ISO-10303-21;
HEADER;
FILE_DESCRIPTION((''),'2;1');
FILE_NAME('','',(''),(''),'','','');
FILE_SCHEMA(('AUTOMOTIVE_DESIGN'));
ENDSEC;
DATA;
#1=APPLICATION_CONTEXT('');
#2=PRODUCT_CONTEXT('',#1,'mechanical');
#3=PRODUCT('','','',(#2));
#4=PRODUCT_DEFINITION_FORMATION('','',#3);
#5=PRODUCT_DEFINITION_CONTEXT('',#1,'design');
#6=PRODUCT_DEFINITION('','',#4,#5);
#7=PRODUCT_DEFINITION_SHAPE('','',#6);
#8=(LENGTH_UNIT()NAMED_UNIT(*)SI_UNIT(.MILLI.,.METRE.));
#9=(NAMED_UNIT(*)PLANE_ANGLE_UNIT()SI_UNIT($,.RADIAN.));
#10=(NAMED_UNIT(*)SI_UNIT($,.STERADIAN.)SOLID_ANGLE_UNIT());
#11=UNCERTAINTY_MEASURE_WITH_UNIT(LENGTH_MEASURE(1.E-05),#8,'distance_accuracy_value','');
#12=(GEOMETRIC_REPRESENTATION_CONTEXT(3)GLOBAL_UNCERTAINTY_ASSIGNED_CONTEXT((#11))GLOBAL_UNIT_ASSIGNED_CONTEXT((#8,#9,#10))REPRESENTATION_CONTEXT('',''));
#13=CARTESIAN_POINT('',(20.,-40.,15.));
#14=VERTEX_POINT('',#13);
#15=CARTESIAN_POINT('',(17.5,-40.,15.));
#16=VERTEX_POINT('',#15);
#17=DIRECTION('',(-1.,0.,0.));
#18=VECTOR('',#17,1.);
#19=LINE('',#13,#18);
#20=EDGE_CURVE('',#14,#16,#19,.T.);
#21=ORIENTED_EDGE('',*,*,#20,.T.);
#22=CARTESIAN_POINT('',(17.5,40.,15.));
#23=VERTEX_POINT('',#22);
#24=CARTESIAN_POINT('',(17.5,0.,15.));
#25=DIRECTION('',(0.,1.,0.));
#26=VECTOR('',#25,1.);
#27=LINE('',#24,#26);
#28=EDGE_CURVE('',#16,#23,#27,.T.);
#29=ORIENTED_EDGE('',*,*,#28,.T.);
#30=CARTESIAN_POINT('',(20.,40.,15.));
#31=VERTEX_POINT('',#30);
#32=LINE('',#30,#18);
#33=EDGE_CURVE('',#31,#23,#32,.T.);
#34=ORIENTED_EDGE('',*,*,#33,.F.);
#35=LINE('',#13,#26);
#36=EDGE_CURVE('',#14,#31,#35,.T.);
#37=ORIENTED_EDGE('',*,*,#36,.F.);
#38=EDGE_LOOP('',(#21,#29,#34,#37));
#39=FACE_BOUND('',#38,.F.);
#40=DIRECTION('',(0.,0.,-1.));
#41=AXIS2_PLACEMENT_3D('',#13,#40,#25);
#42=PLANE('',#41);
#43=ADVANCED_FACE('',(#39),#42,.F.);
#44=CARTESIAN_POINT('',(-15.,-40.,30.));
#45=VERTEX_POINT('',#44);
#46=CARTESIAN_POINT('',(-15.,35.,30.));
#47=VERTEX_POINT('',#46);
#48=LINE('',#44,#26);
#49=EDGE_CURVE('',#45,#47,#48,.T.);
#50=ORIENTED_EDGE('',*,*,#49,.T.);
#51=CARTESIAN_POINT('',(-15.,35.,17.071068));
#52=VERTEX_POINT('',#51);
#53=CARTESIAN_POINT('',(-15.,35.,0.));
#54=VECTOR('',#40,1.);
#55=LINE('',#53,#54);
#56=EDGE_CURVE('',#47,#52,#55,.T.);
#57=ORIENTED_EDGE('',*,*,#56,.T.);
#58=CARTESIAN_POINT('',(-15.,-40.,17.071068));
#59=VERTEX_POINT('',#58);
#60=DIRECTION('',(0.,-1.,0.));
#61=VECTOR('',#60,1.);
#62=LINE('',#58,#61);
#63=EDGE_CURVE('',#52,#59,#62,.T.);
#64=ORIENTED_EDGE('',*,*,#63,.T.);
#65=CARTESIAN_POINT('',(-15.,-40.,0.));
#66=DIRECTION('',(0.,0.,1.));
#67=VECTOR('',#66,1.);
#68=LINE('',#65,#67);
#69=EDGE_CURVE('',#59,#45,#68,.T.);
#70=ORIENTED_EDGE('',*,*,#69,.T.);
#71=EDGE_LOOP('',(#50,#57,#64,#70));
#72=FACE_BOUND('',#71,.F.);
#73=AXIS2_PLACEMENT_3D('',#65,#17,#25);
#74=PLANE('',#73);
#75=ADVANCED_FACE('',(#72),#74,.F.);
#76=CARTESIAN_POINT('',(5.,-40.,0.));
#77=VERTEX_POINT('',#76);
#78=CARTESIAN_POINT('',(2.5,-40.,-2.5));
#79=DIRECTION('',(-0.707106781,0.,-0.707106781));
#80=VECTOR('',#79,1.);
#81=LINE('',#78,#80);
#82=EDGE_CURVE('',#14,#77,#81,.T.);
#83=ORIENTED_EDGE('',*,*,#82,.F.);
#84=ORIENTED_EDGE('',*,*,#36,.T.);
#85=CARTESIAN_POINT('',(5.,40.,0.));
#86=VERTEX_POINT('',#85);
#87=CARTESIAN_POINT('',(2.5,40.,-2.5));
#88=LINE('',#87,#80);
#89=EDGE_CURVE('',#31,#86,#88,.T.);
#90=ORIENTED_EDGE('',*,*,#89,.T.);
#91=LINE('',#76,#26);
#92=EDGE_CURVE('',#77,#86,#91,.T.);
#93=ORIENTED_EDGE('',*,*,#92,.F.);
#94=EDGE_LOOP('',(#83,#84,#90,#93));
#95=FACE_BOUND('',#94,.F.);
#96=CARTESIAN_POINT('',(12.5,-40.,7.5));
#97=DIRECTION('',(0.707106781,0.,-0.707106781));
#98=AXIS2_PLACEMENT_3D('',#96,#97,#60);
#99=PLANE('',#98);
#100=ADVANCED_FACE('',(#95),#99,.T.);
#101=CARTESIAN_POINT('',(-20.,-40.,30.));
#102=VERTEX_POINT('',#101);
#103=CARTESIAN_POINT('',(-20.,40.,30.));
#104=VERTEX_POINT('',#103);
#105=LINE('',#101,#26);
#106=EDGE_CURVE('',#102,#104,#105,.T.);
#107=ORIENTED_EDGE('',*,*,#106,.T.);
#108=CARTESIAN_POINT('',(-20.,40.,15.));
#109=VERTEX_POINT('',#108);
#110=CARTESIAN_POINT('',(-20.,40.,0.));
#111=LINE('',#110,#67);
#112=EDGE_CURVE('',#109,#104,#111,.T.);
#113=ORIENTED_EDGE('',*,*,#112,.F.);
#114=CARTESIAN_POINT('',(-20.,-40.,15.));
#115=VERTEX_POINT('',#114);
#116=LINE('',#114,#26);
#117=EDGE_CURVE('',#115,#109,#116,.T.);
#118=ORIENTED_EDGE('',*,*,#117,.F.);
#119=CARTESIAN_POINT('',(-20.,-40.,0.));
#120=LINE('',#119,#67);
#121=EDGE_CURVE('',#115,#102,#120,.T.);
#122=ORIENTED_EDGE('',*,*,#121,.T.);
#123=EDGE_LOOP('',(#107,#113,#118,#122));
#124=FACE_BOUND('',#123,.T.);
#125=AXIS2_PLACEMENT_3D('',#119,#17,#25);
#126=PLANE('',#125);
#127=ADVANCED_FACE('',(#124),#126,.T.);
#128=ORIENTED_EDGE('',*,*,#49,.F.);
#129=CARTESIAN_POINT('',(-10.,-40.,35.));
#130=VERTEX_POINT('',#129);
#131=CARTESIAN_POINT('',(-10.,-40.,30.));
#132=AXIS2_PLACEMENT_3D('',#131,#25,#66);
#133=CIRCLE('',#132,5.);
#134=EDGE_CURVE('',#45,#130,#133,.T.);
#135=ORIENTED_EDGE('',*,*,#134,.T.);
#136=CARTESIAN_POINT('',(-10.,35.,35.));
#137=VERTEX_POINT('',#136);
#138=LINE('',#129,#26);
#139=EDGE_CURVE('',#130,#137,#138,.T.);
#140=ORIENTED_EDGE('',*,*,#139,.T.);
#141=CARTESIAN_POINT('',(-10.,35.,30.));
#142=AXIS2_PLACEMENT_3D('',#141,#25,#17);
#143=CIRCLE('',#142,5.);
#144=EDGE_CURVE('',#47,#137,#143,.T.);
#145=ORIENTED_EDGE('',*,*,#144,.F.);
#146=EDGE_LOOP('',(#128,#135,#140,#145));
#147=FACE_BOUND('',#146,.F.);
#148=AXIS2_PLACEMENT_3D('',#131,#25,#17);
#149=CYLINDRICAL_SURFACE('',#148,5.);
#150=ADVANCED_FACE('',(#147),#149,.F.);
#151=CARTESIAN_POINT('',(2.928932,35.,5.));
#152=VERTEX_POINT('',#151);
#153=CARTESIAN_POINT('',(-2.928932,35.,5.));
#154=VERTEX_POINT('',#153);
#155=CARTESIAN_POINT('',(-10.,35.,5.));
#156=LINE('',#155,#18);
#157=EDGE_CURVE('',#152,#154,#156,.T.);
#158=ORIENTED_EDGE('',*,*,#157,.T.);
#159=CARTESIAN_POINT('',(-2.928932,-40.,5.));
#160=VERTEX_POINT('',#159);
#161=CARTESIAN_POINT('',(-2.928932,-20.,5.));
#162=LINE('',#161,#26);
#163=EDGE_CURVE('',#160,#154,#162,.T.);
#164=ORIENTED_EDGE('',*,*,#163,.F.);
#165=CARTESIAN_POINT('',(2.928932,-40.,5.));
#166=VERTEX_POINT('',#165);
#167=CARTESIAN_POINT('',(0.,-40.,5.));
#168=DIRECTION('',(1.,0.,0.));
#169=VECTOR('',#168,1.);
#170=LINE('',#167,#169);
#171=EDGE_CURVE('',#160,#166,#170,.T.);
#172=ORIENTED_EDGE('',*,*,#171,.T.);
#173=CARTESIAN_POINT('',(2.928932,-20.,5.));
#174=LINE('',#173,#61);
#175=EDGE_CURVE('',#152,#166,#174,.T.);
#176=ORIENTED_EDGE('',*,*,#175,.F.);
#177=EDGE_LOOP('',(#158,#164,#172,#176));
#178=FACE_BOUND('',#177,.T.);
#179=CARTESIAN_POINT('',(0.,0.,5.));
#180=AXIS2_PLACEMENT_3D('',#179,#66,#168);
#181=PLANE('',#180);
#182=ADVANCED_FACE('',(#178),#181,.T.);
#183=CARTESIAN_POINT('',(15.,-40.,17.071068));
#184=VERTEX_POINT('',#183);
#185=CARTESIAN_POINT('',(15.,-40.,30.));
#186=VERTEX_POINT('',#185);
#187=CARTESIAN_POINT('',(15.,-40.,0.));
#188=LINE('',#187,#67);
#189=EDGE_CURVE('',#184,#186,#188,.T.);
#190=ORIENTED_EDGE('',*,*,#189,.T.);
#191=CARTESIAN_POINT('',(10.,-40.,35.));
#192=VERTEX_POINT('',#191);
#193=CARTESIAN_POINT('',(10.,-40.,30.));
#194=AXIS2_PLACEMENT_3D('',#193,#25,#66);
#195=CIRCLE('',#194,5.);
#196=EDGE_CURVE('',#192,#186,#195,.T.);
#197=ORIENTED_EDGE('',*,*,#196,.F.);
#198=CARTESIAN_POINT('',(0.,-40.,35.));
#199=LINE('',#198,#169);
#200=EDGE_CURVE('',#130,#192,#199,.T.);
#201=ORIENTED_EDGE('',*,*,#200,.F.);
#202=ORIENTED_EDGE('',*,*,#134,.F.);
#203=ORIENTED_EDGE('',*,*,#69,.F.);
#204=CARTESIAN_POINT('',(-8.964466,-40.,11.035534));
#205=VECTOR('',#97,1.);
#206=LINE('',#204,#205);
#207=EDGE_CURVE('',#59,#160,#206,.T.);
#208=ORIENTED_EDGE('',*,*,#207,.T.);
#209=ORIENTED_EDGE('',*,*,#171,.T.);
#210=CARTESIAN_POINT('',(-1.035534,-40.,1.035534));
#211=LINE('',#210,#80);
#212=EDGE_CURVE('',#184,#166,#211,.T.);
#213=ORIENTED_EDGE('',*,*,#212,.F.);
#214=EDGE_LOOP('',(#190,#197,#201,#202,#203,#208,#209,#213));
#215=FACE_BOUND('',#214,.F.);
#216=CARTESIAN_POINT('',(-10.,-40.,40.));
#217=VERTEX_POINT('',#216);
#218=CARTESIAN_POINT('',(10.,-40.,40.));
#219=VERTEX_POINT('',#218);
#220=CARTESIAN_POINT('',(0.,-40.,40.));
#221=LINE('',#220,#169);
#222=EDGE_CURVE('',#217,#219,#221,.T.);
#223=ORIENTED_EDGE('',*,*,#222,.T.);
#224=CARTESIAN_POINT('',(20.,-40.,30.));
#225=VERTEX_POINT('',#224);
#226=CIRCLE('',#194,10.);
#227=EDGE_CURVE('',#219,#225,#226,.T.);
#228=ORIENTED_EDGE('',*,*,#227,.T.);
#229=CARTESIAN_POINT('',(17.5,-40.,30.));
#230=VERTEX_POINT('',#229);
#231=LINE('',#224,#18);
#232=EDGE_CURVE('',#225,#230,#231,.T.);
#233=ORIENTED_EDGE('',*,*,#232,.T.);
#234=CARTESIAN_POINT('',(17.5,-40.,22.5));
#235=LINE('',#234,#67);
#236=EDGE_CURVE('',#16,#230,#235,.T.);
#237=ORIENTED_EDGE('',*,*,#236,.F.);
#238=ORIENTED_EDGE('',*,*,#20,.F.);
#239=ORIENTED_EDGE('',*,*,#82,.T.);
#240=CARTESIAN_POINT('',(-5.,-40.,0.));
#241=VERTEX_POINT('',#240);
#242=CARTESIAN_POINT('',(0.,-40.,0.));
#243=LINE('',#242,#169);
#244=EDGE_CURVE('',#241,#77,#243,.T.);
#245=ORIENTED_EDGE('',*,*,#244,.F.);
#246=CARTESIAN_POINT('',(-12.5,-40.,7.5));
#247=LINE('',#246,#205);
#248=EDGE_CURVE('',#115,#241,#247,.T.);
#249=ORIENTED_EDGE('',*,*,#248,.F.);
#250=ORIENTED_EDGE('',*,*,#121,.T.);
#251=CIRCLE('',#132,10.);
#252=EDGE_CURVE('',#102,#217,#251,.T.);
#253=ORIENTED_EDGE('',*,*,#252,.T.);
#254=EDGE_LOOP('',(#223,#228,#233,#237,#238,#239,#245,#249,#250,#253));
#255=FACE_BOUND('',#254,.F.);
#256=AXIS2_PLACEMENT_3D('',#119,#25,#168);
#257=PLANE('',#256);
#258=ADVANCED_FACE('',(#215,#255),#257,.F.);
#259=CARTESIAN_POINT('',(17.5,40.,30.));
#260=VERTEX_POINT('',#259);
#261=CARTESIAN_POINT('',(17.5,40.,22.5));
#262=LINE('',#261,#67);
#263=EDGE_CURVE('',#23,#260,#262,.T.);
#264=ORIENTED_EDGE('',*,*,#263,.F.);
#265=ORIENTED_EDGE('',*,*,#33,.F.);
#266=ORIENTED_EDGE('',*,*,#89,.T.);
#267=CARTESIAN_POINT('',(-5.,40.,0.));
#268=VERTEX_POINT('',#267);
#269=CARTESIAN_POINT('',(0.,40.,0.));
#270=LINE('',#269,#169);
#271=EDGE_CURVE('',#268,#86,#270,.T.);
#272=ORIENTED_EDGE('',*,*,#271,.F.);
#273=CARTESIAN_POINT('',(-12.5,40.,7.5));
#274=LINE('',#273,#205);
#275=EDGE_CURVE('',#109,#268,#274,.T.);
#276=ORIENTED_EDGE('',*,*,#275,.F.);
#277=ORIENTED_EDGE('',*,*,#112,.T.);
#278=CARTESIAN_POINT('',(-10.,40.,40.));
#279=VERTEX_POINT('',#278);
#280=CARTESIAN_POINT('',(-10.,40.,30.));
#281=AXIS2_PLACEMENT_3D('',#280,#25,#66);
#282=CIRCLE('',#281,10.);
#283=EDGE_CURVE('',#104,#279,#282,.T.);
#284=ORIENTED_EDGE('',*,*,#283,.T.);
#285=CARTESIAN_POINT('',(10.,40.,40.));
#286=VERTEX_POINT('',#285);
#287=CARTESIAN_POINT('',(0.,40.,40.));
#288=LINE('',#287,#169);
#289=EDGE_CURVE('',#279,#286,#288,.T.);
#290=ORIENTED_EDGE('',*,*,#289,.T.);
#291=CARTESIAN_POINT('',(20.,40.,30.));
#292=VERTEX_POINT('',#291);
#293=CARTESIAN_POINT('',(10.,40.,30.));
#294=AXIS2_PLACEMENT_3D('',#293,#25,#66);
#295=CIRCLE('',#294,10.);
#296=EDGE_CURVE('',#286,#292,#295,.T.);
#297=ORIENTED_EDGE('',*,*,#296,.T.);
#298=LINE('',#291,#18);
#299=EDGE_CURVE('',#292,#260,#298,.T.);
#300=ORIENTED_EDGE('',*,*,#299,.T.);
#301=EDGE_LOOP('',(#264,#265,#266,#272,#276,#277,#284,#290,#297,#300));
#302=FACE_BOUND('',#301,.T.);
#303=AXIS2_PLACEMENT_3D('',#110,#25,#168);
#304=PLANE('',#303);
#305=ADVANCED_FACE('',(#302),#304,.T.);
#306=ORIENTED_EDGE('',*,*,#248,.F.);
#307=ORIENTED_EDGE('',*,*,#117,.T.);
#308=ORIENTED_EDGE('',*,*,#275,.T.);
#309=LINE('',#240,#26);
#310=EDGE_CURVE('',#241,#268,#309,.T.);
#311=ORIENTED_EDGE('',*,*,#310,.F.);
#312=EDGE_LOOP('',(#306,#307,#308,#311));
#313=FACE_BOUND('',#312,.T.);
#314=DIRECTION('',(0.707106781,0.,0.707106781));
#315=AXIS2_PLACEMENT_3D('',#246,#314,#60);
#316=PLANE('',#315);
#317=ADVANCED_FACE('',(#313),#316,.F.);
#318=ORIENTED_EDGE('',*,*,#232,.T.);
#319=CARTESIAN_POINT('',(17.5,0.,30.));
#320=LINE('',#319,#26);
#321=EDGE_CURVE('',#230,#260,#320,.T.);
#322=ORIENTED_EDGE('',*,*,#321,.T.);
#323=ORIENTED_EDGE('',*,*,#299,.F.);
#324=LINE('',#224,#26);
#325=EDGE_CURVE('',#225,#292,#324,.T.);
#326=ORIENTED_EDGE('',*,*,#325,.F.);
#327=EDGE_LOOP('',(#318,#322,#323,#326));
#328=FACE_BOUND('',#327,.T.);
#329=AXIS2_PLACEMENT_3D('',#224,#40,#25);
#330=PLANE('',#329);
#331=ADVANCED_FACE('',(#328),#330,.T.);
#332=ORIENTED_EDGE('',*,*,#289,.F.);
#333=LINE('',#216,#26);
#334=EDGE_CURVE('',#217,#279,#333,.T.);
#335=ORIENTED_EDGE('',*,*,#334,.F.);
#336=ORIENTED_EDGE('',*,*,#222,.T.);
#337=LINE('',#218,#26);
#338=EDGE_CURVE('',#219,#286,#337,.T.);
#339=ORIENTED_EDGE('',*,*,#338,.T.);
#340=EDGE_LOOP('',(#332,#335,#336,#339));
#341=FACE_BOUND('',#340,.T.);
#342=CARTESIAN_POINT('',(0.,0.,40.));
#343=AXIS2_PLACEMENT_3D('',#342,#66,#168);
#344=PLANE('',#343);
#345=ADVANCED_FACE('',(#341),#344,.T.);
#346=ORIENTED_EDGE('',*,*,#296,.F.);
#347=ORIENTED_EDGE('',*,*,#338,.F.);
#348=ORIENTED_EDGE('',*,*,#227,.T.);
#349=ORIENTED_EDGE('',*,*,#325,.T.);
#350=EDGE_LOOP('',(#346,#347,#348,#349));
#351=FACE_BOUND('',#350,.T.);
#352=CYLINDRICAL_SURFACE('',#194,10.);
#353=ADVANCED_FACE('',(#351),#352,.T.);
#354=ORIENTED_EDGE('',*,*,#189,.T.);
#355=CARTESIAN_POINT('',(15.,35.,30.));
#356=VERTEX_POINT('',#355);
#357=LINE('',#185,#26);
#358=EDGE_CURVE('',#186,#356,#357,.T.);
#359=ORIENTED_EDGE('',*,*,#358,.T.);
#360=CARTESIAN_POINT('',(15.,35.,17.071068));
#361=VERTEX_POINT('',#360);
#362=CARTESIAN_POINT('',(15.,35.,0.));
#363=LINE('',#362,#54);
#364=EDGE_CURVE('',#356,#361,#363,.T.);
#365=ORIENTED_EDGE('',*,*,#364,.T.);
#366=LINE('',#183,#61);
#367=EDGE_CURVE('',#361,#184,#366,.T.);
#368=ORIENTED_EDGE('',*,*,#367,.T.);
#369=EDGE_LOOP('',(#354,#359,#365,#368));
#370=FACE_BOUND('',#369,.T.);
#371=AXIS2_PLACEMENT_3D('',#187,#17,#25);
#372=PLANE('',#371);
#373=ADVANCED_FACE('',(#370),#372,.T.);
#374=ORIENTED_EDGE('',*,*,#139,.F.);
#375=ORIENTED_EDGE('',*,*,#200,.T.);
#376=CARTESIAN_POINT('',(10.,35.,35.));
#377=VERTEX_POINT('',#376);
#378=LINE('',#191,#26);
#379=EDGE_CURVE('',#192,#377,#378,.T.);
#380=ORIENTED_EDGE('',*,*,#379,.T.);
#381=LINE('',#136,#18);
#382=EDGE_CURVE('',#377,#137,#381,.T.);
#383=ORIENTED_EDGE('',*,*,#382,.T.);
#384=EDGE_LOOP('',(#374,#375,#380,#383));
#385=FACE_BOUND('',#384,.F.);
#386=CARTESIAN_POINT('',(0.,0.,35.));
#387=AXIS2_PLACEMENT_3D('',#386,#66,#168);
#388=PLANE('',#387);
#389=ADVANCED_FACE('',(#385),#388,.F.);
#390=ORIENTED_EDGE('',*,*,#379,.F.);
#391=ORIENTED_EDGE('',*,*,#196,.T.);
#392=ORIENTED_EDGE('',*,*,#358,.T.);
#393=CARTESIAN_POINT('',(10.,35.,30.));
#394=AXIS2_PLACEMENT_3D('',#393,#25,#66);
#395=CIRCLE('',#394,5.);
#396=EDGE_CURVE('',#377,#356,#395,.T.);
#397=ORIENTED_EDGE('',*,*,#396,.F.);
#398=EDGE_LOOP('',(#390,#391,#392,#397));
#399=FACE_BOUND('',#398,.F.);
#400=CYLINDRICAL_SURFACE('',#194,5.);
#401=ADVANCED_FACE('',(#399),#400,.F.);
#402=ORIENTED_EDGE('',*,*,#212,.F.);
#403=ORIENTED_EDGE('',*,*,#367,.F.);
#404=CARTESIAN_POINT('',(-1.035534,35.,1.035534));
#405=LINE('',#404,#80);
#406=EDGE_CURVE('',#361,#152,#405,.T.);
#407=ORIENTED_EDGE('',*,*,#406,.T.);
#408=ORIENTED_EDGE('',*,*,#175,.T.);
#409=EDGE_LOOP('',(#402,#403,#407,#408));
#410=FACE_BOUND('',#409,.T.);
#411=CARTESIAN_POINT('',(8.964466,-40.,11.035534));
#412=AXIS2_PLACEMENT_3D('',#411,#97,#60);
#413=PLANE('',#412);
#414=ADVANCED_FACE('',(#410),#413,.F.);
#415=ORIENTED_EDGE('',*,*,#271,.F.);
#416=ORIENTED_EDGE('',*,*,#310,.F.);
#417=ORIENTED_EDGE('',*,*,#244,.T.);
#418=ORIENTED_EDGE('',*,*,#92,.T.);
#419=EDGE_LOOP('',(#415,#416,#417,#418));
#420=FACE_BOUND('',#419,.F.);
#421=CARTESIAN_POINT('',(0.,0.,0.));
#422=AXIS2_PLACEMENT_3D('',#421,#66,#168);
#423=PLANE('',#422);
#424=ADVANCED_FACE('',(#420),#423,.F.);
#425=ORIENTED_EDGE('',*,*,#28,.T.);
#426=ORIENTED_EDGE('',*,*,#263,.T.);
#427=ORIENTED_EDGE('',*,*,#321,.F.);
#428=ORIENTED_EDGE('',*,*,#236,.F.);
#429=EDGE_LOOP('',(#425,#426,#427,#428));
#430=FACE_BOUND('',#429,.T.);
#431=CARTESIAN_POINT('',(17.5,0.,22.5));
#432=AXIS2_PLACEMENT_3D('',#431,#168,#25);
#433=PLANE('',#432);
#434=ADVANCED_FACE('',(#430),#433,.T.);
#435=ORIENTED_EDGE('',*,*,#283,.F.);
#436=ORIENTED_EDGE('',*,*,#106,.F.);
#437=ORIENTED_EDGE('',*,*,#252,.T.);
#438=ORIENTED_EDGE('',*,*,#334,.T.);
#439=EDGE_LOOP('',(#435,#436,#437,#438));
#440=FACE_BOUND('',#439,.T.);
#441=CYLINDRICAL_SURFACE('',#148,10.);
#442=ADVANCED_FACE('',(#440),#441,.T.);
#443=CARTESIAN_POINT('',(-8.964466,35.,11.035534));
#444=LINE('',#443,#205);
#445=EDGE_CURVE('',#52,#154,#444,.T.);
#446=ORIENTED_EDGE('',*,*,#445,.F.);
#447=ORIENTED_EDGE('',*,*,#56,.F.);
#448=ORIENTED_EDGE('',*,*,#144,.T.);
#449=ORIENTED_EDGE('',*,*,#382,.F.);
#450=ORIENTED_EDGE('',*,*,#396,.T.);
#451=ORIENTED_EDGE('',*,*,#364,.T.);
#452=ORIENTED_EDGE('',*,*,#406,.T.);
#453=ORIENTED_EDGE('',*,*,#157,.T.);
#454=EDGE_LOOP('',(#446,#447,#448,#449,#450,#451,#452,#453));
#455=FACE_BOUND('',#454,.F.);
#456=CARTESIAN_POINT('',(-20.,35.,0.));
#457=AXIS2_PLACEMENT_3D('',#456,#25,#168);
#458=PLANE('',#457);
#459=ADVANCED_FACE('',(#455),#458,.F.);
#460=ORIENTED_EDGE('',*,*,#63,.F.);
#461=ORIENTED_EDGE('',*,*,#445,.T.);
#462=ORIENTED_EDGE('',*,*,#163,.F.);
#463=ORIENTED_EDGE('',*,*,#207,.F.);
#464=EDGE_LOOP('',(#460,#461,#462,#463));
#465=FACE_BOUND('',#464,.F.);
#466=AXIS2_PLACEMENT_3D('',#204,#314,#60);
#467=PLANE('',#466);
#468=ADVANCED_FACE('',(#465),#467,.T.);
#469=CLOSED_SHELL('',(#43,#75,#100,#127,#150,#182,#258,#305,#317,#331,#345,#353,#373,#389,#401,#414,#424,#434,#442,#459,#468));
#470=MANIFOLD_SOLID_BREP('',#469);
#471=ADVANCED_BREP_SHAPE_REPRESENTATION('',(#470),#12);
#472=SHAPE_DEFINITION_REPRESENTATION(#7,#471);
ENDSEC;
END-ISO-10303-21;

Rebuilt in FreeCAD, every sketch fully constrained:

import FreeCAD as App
import Part
import Sketcher

V = App.Vector


def edges_at(feature, points):
    """Names of the edges that pass closest to the given points."""
    edges = feature.Shape.Edges
    near = lambda p: min(range(len(edges)), key=lambda i: edges[i].distToShape(Part.Vertex(*p))[0])
    return sorted({f"Edge{near(p) + 1}" for p in points})


def faces_at(feature, points):
    """Names of the faces that lie closest to the given points."""
    faces = feature.Shape.Faces
    near = lambda p: min(range(len(faces)), key=lambda i: faces[i].distToShape(Part.Vertex(*p))[0])
    return sorted({f"Face{near(p) + 1}" for p in points})

doc = App.newDocument("Part")
body = doc.addObject("PartDesign::Body", "Body")

# Sketch on XY plane
sketch1 = body.newObject("Sketcher::SketchObject", "Sketch")
sketch1.AttachmentSupport = (doc.getObject("XY_Plane"), [""])
sketch1.MapMode = "FlatFace"
sketch1.addGeometry(Part.LineSegment(V(-20, 40, 0), V(-20, -40, 0)), False)
sketch1.addGeometry(Part.LineSegment(V(-20, -40, 0), V(20, -40, 0)), False)
sketch1.addGeometry(Part.LineSegment(V(20, -40, 0), V(20, 40, 0)), False)
sketch1.addGeometry(Part.LineSegment(V(20, 40, 0), V(-20, 40, 0)), False)
sketch1.addConstraint(Sketcher.Constraint("Coincident", 0, 2, 1, 1))
sketch1.addConstraint(Sketcher.Constraint("Coincident", 1, 2, 2, 1))
sketch1.addConstraint(Sketcher.Constraint("Coincident", 2, 2, 3, 1))
sketch1.addConstraint(Sketcher.Constraint("Coincident", 3, 2, 0, 1))
sketch1.addConstraint(Sketcher.Constraint("Vertical", 0))
sketch1.addConstraint(Sketcher.Constraint("Horizontal", 1))
sketch1.addConstraint(Sketcher.Constraint("Vertical", 2))
sketch1.addConstraint(Sketcher.Constraint("Horizontal", 3))
sketch1.addConstraint(Sketcher.Constraint("Symmetric", 0, 2, 2, 2, -1, 1))
sketch1.addConstraint(Sketcher.Constraint("DistanceX", 1, 1, 1, 2, 40.0))
sketch1.addConstraint(Sketcher.Constraint("DistanceY", 0, 2, 0, 1, 80.0))
pad1 = body.newObject("PartDesign::Pad", "Pad")
pad1.Profile = sketch1
pad1.Length = 40
doc.recompute()

chamfer = body.newObject("PartDesign::Chamfer", "Chamfer")
chamfer.Base = (pad1, edges_at(pad1, [(-20, 0, 0), (20, 0, 0)]))
chamfer.Size = 15
doc.recompute()

fillet = body.newObject("PartDesign::Fillet", "Fillet")
fillet.Base = (chamfer, edges_at(chamfer, [(-20, 0, 40), (20, 0, 40)]))
fillet.Radius = 10
doc.recompute()

thickness = body.newObject("PartDesign::Thickness", "Thickness")
thickness.Base = (fillet, faces_at(fillet, [(0, -40, 20)]))
thickness.Value = 5
thickness.Reversed = True
thickness.Join = "Arc"

# Sketch on YZ plane
sketch2 = body.newObject("Sketcher::SketchObject", "Sketch001")
sketch2.AttachmentSupport = (doc.getObject("YZ_Plane"), [""])
sketch2.MapMode = "FlatFace"
sketch2.AttachmentOffset = App.Placement(V(0, 0, 20), App.Rotation())
sketch2.addGeometry(Part.LineSegment(V(-40, 30, 0), V(-40, 15, 0)), False)
sketch2.addGeometry(Part.LineSegment(V(-40, 15, 0), V(40, 15, 0)), False)
sketch2.addGeometry(Part.LineSegment(V(40, 15, 0), V(40, 30, 0)), False)
sketch2.addGeometry(Part.LineSegment(V(40, 30, 0), V(-40, 30, 0)), False)
sketch2.addConstraint(Sketcher.Constraint("Coincident", 0, 2, 1, 1))
sketch2.addConstraint(Sketcher.Constraint("Coincident", 1, 2, 2, 1))
sketch2.addConstraint(Sketcher.Constraint("Coincident", 2, 2, 3, 1))
sketch2.addConstraint(Sketcher.Constraint("Coincident", 3, 2, 0, 1))
sketch2.addConstraint(Sketcher.Constraint("Vertical", 0))
sketch2.addConstraint(Sketcher.Constraint("Horizontal", 1))
sketch2.addConstraint(Sketcher.Constraint("Vertical", 2))
sketch2.addConstraint(Sketcher.Constraint("Horizontal", 3))
sketch2.addConstraint(Sketcher.Constraint("DistanceX", 1, 1, 1, 2, 80.0))
sketch2.addConstraint(Sketcher.Constraint("DistanceY", 0, 2, 0, 1, 15.0))
sketch2.addConstraint(Sketcher.Constraint("DistanceX", 0, 2, -1, 1, 40.0))
sketch2.addConstraint(Sketcher.Constraint("DistanceY", -1, 1, 0, 2, 15.0))
pocket1 = body.newObject("PartDesign::Pocket", "Pocket")
pocket1.Profile = sketch2
pocket1.Length = 2.5

doc.recompute()
